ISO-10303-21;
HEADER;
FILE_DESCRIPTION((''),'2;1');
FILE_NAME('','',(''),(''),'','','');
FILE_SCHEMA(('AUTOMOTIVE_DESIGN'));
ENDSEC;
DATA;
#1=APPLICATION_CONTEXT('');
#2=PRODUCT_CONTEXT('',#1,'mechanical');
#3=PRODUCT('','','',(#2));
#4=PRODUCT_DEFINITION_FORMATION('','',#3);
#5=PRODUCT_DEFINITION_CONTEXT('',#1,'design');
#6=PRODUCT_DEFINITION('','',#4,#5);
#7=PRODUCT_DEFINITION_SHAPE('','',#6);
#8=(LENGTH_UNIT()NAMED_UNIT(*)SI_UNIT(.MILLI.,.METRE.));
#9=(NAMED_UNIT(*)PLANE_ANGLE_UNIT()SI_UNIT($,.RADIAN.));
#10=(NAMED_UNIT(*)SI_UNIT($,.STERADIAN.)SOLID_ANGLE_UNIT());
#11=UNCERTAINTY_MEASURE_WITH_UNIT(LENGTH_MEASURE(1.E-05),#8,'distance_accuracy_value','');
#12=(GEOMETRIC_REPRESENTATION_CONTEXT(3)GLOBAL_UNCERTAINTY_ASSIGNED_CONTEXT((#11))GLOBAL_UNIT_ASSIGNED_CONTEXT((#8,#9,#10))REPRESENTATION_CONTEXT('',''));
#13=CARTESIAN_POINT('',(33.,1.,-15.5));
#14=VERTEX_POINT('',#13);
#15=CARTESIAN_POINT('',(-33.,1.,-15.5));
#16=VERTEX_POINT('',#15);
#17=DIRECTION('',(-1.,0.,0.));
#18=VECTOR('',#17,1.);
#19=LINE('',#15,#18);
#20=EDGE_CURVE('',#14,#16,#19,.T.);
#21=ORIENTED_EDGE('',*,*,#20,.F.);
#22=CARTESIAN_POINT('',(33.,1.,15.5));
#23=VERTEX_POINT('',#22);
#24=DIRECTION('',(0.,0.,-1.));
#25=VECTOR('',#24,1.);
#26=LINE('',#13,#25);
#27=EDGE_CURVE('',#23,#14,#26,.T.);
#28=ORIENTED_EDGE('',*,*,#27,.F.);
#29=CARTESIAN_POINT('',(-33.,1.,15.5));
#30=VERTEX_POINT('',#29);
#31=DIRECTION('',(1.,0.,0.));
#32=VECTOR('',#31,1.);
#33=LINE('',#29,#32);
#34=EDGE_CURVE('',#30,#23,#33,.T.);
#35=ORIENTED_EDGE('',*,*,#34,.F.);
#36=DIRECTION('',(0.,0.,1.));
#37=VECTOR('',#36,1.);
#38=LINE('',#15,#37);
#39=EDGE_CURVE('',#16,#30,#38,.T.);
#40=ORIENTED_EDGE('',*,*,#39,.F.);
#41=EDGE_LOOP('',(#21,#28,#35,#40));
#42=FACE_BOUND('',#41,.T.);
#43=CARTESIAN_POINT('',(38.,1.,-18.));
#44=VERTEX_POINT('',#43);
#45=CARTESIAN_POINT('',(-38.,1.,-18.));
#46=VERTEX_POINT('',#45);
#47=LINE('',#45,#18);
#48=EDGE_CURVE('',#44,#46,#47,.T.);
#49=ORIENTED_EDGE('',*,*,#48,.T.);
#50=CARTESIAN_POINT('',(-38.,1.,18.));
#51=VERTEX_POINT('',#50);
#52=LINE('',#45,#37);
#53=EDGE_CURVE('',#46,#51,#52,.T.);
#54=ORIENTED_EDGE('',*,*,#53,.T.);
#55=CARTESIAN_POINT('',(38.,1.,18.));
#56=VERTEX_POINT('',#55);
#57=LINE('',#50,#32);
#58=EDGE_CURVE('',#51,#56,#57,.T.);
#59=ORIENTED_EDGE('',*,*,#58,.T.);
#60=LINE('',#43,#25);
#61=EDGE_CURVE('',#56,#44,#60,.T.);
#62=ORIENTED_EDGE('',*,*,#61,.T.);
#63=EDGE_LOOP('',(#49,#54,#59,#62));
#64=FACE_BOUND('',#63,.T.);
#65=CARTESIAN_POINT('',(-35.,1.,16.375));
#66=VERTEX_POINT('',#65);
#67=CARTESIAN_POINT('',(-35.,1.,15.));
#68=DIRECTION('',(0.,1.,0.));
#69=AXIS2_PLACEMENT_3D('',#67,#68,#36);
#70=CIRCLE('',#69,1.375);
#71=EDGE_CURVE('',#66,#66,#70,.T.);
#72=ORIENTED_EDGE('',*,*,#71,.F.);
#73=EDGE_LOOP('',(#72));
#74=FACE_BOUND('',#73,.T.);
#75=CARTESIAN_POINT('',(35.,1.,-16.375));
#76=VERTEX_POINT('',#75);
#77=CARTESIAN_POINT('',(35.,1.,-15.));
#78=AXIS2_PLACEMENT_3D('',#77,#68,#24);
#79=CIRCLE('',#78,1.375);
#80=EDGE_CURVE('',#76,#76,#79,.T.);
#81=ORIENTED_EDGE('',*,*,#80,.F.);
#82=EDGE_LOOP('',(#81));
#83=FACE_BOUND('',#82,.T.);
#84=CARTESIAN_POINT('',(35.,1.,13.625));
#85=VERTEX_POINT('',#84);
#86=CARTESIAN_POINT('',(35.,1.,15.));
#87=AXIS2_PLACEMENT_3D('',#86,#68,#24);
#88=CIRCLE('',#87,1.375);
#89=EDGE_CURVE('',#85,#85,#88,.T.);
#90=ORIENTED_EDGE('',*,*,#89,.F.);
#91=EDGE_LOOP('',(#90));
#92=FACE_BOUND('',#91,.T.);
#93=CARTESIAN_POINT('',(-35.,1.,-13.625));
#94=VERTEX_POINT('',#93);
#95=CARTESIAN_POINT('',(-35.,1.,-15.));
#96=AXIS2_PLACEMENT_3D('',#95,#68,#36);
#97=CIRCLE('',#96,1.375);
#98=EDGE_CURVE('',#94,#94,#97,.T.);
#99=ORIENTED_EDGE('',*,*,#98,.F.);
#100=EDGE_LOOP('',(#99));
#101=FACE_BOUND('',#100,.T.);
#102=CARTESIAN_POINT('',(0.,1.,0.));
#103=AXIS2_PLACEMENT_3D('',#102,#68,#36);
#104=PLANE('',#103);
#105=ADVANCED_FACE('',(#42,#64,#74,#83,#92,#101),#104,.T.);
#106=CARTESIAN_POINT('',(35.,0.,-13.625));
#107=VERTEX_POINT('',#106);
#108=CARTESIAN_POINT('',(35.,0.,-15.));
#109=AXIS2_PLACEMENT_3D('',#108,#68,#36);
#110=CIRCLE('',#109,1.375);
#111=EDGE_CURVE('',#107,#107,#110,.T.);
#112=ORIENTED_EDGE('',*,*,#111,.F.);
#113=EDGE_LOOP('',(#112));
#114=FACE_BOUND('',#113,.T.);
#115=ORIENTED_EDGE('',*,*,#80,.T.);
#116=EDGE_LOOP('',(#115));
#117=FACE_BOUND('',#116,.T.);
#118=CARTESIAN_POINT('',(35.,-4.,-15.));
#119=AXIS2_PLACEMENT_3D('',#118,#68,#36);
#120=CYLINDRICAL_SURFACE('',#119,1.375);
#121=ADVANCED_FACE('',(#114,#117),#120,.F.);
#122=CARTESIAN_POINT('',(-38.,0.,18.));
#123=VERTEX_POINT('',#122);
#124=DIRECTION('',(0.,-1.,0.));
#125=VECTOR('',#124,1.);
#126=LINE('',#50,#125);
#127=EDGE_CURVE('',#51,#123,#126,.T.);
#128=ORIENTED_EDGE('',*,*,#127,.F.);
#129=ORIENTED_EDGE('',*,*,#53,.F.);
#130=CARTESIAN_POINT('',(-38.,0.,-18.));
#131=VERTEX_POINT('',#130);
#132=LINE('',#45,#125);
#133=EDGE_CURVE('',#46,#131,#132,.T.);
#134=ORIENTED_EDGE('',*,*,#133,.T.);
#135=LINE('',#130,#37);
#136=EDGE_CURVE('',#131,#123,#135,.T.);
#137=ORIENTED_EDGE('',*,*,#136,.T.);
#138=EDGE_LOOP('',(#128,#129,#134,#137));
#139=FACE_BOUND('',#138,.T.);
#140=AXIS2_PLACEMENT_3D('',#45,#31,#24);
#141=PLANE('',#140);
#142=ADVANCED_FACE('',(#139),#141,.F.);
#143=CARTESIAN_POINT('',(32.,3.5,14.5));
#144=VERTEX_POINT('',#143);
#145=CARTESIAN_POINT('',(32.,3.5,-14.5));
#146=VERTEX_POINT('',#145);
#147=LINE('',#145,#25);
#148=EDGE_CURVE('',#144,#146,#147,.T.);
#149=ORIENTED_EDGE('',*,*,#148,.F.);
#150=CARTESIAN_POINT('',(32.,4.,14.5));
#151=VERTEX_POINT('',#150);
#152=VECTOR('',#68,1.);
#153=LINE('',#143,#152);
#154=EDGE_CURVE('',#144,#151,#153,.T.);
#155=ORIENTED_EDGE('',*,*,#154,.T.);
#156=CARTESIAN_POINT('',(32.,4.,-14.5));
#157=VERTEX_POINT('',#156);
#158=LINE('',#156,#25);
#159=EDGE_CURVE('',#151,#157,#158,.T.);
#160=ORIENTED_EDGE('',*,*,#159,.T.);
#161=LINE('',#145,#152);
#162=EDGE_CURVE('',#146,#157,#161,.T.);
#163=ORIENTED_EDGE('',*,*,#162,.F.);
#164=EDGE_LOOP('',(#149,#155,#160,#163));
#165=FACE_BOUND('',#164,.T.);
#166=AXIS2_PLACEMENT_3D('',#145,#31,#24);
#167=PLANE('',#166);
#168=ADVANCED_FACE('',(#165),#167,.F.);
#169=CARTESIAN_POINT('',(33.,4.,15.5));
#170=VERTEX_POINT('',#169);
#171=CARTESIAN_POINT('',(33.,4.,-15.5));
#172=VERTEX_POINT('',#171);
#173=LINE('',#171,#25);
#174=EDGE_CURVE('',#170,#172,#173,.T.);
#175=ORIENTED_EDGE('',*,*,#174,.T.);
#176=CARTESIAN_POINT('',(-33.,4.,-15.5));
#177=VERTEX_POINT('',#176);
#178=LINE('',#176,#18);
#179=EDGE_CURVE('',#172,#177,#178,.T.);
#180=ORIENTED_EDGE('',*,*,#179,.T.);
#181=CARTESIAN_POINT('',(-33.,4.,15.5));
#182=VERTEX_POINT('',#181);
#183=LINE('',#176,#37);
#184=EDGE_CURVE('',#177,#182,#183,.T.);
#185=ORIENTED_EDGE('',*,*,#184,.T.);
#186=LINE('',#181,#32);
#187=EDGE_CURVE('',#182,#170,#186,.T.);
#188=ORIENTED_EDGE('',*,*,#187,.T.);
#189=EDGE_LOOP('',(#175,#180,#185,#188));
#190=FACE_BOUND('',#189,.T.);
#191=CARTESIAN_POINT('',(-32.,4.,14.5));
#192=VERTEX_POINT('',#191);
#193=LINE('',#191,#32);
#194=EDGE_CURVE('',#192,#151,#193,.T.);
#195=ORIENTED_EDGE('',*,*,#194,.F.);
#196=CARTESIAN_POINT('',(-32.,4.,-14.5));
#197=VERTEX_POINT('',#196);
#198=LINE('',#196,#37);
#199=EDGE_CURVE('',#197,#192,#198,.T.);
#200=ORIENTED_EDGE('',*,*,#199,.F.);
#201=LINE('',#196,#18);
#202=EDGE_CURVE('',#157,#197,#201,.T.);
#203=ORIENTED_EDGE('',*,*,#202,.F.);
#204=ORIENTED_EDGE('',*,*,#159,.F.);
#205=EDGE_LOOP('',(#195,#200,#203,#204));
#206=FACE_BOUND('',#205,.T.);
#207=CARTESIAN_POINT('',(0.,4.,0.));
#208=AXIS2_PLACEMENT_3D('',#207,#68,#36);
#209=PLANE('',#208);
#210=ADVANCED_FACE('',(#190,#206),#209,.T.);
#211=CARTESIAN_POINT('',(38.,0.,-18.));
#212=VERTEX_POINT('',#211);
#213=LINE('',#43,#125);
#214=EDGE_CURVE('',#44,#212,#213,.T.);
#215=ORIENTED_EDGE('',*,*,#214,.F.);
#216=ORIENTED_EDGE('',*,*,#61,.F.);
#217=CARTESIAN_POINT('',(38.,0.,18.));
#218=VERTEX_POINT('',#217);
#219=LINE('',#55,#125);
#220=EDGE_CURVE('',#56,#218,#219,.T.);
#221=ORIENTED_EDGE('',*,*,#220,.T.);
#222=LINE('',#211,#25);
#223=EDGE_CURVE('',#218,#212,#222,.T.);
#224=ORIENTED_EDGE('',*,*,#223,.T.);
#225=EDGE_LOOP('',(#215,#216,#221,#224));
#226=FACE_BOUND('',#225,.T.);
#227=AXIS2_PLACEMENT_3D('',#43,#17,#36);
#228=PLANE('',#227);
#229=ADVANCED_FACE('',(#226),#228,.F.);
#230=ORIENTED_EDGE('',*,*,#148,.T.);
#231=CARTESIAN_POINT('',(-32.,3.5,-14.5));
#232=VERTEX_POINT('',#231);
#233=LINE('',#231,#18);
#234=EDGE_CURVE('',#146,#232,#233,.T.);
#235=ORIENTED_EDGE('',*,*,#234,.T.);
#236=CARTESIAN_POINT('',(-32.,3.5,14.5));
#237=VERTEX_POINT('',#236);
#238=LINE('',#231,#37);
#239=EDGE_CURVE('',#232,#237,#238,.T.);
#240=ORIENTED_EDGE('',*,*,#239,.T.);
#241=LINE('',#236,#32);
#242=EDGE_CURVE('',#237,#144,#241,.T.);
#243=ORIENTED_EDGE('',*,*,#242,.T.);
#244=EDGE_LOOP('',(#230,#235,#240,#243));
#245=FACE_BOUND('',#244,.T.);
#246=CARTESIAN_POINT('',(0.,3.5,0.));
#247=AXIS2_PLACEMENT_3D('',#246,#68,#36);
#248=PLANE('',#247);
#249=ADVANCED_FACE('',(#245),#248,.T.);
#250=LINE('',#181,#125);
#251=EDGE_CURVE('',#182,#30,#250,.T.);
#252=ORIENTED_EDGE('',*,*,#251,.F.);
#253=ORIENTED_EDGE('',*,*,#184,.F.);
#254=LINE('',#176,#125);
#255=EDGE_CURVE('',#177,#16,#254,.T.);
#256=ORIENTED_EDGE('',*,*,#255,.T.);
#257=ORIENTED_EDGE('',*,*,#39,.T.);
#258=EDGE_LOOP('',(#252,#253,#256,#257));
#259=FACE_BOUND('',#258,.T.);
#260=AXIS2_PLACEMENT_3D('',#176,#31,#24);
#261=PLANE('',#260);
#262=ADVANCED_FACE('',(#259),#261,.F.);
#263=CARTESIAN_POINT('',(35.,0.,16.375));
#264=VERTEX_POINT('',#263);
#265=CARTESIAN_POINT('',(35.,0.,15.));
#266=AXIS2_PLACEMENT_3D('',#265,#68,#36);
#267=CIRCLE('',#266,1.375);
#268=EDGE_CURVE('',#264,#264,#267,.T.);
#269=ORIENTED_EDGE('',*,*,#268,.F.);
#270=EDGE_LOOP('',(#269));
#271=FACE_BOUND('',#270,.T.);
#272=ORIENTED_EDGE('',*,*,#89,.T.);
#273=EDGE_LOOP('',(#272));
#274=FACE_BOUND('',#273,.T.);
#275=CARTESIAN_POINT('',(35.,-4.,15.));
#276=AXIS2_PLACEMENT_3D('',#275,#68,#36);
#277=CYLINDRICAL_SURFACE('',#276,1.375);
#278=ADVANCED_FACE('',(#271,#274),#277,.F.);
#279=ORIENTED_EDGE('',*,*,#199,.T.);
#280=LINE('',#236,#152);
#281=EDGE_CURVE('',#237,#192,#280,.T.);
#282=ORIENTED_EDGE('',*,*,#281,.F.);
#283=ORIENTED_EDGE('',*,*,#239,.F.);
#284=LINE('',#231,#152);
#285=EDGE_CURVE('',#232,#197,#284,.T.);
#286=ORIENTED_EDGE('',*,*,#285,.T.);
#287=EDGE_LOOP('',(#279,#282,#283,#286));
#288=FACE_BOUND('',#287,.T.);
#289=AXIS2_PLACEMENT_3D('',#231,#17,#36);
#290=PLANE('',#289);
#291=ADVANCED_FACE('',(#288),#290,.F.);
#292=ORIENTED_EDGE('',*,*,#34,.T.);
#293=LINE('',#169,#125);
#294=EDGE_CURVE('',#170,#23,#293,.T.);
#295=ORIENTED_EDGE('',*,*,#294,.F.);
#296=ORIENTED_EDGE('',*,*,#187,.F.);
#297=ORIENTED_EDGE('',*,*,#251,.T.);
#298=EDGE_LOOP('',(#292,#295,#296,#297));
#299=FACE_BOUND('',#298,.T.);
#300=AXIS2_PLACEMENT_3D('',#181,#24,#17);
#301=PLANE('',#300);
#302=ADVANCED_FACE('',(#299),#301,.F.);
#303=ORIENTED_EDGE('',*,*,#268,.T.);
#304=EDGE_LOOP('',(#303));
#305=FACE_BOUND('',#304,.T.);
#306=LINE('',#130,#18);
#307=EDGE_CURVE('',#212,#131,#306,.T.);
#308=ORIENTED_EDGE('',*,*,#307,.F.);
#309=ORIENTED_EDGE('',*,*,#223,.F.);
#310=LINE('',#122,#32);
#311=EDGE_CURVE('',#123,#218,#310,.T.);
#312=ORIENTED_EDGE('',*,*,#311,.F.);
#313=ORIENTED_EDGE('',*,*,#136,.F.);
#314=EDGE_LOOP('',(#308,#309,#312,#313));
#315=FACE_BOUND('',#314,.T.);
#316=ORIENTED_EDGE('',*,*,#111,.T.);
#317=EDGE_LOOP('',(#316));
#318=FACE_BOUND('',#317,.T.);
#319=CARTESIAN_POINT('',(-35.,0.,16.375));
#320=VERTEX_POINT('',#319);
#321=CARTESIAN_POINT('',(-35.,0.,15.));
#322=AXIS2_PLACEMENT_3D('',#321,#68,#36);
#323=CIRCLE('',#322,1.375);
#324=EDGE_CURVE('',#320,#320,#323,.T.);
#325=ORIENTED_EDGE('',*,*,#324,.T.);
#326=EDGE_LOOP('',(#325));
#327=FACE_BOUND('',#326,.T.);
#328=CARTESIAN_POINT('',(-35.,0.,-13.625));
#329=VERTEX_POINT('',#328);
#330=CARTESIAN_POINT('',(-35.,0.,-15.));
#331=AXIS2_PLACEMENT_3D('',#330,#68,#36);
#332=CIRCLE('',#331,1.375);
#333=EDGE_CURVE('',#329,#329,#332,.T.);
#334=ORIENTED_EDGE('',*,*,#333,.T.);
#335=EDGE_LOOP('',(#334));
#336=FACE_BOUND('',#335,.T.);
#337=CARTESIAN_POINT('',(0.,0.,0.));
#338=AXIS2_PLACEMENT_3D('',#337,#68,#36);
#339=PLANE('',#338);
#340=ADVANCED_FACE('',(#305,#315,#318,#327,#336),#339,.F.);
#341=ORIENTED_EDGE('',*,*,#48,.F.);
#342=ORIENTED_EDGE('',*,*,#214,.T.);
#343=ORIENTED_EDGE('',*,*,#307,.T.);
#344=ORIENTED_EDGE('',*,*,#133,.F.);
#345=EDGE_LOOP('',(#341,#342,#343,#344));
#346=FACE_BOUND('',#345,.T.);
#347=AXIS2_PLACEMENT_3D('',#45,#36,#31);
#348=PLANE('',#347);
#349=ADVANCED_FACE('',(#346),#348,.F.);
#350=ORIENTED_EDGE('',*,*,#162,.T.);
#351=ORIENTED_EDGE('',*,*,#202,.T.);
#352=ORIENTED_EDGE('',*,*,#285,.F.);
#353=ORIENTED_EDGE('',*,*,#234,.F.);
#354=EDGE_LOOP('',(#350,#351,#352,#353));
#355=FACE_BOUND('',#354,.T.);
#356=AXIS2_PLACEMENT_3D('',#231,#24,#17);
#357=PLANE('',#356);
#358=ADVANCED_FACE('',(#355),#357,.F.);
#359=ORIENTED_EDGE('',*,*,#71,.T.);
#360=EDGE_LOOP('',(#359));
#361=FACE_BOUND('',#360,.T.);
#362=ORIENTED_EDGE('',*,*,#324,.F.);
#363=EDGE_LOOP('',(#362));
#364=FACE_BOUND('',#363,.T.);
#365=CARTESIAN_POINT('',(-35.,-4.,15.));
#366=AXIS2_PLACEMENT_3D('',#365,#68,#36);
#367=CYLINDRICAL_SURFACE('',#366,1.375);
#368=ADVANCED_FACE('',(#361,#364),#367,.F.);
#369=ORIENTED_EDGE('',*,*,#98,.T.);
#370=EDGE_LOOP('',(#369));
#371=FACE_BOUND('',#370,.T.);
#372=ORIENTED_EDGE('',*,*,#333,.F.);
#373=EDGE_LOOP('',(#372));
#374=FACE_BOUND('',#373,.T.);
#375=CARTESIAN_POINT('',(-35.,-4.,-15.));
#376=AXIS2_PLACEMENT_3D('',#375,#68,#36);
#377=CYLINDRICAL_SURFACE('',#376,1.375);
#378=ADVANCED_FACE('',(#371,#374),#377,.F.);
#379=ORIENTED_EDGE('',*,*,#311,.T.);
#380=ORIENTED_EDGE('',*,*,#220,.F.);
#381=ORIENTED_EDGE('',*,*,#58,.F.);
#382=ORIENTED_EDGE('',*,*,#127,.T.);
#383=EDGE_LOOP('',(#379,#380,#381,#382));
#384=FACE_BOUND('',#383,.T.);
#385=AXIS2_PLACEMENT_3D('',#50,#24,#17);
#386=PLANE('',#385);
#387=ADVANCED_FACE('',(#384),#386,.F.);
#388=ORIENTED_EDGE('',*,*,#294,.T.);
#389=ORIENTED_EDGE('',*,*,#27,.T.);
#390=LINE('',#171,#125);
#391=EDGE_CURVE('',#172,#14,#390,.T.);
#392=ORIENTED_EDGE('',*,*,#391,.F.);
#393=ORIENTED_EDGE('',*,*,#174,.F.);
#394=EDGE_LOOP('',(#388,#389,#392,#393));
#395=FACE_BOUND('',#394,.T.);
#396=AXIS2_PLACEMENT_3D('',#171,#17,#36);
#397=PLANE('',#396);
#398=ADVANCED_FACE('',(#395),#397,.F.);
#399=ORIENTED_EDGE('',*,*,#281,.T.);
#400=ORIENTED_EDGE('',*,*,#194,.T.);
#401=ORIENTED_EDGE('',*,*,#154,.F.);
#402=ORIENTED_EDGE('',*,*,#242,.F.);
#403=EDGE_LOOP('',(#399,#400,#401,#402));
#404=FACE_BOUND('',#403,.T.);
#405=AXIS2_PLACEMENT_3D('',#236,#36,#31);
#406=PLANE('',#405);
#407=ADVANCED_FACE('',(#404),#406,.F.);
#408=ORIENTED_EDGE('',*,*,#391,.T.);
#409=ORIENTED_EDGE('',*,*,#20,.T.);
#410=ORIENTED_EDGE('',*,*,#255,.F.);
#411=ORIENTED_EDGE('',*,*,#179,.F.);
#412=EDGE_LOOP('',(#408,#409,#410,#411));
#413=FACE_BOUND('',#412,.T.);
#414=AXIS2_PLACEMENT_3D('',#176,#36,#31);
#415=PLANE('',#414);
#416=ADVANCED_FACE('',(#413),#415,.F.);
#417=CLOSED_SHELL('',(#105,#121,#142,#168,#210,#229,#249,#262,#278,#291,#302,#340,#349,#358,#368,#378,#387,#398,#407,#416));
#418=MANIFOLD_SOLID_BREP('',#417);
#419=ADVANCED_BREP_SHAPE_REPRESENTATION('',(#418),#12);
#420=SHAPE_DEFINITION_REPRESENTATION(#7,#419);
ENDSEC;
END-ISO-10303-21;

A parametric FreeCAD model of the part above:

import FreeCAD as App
import Part
import Sketcher

V = App.Vector


def add_polygon(sketch, points):
    """Adds a closed chain of lines whose ends are joined by coincident constraints."""
    first, n = sketch.GeometryCount, len(points)
    for a, b in zip(points, points[1:] + points[:1]):
        sketch.addGeometry(Part.LineSegment(App.Vector(*a, 0), App.Vector(*b, 0)), False)
    for i in range(n):
        sketch.addConstraint(Sketcher.Constraint("Coincident", first + i, 2, first + (i + 1) % n, 1))

doc = App.newDocument("Part")
body = doc.addObject("PartDesign::Body", "Body")

# Sketch on XZ plane
sketch1 = doc.addObject("Sketcher::SketchObject", "Sketch")
body.addObject(sketch1)
sketch1.AttachmentSupport = (doc.XZ_Plane, [""])
sketch1.MapMode = "FlatFace"
add_polygon(sketch1, [(-38, -18), (-38, 18), (38, 18), (38, -18)])  # lines 0-3
sketch1.addConstraint([
    Sketcher.Constraint("Vertical", 0),
    Sketcher.Constraint("Horizontal", 1),
    Sketcher.Constraint("Vertical", 2),
    Sketcher.Constraint("Horizontal", 3),
    Sketcher.Constraint("Symmetric", 0, 2, 2, 2, -1, 1),
    Sketcher.Constraint("DistanceX", 1, 1, 1, 2, 76.0),
    Sketcher.Constraint("DistanceY", 0, 1, 0, 2, 36.0),
])
pad1 = doc.addObject("PartDesign::Pad", "Pad")
body.addObject(pad1)
pad1.Profile = sketch1
pad1.Length = 1
pad1.Reversed = True

# Sketch on XZ plane
sketch2 = doc.addObject("Sketcher::SketchObject", "Sketch001")
body.addObject(sketch2)
sketch2.AttachmentSupport = (doc.XZ_Plane, [""])
sketch2.MapMode = "FlatFace"
sketch2.AttachmentOffset = App.Placement(V(0, 0, -1), App.Rotation())
add_polygon(sketch2, [(-33, -15.5), (-33, 15.5), (33, 15.5), (33, -15.5)])  # lines 0-3
sketch2.addConstraint([
    Sketcher.Constraint("Vertical", 0),
    Sketcher.Constraint("Horizontal", 1),
    Sketcher.Constraint("Vertical", 2),
    Sketcher.Constraint("Horizontal", 3),
    Sketcher.Constraint("Symmetric", 0, 2, 2, 2, -1, 1),
    Sketcher.Constraint("DistanceX", 1, 1, 1, 2, 66.0),
    Sketcher.Constraint("DistanceY", 0, 1, 0, 2, 31.0),
])
pad2 = doc.addObject("PartDesign::Pad", "Pad001")
body.addObject(pad2)
pad2.Profile = sketch2
pad2.Length = 3
pad2.Reversed = True

# Sketch on XZ plane
sketch3 = doc.addObject("Sketcher::SketchObject", "Sketch002")
body.addObject(sketch3)
sketch3.AttachmentSupport = (doc.XZ_Plane, [""])
sketch3.MapMode = "FlatFace"
sketch3.AttachmentOffset = App.Placement(V(0, 0, -4), App.Rotation())
add_polygon(sketch3, [(-32, -14.5), (-32, 14.5), (32, 14.5), (32, -14.5)])  # lines 0-3
sketch3.addConstraint([
    Sketcher.Constraint("Vertical", 0),
    Sketcher.Constraint("Horizontal", 1),
    Sketcher.Constraint("Vertical", 2),
    Sketcher.Constraint("Horizontal", 3),
    Sketcher.Constraint("Symmetric", 0, 2, 2, 2, -1, 1),
    Sketcher.Constraint("DistanceX", 1, 1, 1, 2, 64.0),
    Sketcher.Constraint("DistanceY", 0, 1, 0, 2, 29.0),
])
pocket1 = doc.addObject("PartDesign::Pocket", "Pocket")
body.addObject(pocket1)
pocket1.Profile = sketch3
pocket1.Length = 0.5
pocket1.Reversed = True

# Sketch on XZ plane
sketch4 = doc.addObject("Sketcher::SketchObject", "Sketch003")
body.addObject(sketch4)
sketch4.AttachmentSupport = (doc.XZ_Plane, [""])
sketch4.MapMode = "FlatFace"
sketch4.AttachmentOffset = App.Placement(V(0, 0, -1), App.Rotation())
sketch4.addGeometry([
    Part.Circle(V(-35, -15, 0), V(0, 0, 1), 1.375),
    Part.Circle(V(-35, 15, 0), V(0, 0, 1), 1.375),
    Part.Circle(V(35, 15, 0), V(0, 0, 1), 1.375),
    Part.Circle(V(35, -15, 0), V(0, 0, 1), 1.375),
], False)
sketch4.addConstraint([
    Sketcher.Constraint("Equal", 0, 1),
    Sketcher.Constraint("Equal", 1, 2),
    Sketcher.Constraint("Equal", 2, 3),
    Sketcher.Constraint("Symmetric", 0, 3, 2, 3, -1, 1),
    Sketcher.Constraint("Symmetric", 1, 3, 3, 3, -1, 1),
    Sketcher.Constraint("Symmetric", 1, 3, 2, 3, -2),
    Sketcher.Constraint("Diameter", 0, 2.75),
    Sketcher.Constraint("DistanceX", 0, 3, -1, 1, 35.0),
    Sketcher.Constraint("DistanceY", 0, 3, -1, 1, 15.0),
])
pocket2 = doc.addObject("PartDesign::Pocket", "Pocket001")
body.addObject(pocket2)
pocket2.Profile = sketch4
pocket2.Length = 5
pocket2.Reversed = True

doc.recompute()
